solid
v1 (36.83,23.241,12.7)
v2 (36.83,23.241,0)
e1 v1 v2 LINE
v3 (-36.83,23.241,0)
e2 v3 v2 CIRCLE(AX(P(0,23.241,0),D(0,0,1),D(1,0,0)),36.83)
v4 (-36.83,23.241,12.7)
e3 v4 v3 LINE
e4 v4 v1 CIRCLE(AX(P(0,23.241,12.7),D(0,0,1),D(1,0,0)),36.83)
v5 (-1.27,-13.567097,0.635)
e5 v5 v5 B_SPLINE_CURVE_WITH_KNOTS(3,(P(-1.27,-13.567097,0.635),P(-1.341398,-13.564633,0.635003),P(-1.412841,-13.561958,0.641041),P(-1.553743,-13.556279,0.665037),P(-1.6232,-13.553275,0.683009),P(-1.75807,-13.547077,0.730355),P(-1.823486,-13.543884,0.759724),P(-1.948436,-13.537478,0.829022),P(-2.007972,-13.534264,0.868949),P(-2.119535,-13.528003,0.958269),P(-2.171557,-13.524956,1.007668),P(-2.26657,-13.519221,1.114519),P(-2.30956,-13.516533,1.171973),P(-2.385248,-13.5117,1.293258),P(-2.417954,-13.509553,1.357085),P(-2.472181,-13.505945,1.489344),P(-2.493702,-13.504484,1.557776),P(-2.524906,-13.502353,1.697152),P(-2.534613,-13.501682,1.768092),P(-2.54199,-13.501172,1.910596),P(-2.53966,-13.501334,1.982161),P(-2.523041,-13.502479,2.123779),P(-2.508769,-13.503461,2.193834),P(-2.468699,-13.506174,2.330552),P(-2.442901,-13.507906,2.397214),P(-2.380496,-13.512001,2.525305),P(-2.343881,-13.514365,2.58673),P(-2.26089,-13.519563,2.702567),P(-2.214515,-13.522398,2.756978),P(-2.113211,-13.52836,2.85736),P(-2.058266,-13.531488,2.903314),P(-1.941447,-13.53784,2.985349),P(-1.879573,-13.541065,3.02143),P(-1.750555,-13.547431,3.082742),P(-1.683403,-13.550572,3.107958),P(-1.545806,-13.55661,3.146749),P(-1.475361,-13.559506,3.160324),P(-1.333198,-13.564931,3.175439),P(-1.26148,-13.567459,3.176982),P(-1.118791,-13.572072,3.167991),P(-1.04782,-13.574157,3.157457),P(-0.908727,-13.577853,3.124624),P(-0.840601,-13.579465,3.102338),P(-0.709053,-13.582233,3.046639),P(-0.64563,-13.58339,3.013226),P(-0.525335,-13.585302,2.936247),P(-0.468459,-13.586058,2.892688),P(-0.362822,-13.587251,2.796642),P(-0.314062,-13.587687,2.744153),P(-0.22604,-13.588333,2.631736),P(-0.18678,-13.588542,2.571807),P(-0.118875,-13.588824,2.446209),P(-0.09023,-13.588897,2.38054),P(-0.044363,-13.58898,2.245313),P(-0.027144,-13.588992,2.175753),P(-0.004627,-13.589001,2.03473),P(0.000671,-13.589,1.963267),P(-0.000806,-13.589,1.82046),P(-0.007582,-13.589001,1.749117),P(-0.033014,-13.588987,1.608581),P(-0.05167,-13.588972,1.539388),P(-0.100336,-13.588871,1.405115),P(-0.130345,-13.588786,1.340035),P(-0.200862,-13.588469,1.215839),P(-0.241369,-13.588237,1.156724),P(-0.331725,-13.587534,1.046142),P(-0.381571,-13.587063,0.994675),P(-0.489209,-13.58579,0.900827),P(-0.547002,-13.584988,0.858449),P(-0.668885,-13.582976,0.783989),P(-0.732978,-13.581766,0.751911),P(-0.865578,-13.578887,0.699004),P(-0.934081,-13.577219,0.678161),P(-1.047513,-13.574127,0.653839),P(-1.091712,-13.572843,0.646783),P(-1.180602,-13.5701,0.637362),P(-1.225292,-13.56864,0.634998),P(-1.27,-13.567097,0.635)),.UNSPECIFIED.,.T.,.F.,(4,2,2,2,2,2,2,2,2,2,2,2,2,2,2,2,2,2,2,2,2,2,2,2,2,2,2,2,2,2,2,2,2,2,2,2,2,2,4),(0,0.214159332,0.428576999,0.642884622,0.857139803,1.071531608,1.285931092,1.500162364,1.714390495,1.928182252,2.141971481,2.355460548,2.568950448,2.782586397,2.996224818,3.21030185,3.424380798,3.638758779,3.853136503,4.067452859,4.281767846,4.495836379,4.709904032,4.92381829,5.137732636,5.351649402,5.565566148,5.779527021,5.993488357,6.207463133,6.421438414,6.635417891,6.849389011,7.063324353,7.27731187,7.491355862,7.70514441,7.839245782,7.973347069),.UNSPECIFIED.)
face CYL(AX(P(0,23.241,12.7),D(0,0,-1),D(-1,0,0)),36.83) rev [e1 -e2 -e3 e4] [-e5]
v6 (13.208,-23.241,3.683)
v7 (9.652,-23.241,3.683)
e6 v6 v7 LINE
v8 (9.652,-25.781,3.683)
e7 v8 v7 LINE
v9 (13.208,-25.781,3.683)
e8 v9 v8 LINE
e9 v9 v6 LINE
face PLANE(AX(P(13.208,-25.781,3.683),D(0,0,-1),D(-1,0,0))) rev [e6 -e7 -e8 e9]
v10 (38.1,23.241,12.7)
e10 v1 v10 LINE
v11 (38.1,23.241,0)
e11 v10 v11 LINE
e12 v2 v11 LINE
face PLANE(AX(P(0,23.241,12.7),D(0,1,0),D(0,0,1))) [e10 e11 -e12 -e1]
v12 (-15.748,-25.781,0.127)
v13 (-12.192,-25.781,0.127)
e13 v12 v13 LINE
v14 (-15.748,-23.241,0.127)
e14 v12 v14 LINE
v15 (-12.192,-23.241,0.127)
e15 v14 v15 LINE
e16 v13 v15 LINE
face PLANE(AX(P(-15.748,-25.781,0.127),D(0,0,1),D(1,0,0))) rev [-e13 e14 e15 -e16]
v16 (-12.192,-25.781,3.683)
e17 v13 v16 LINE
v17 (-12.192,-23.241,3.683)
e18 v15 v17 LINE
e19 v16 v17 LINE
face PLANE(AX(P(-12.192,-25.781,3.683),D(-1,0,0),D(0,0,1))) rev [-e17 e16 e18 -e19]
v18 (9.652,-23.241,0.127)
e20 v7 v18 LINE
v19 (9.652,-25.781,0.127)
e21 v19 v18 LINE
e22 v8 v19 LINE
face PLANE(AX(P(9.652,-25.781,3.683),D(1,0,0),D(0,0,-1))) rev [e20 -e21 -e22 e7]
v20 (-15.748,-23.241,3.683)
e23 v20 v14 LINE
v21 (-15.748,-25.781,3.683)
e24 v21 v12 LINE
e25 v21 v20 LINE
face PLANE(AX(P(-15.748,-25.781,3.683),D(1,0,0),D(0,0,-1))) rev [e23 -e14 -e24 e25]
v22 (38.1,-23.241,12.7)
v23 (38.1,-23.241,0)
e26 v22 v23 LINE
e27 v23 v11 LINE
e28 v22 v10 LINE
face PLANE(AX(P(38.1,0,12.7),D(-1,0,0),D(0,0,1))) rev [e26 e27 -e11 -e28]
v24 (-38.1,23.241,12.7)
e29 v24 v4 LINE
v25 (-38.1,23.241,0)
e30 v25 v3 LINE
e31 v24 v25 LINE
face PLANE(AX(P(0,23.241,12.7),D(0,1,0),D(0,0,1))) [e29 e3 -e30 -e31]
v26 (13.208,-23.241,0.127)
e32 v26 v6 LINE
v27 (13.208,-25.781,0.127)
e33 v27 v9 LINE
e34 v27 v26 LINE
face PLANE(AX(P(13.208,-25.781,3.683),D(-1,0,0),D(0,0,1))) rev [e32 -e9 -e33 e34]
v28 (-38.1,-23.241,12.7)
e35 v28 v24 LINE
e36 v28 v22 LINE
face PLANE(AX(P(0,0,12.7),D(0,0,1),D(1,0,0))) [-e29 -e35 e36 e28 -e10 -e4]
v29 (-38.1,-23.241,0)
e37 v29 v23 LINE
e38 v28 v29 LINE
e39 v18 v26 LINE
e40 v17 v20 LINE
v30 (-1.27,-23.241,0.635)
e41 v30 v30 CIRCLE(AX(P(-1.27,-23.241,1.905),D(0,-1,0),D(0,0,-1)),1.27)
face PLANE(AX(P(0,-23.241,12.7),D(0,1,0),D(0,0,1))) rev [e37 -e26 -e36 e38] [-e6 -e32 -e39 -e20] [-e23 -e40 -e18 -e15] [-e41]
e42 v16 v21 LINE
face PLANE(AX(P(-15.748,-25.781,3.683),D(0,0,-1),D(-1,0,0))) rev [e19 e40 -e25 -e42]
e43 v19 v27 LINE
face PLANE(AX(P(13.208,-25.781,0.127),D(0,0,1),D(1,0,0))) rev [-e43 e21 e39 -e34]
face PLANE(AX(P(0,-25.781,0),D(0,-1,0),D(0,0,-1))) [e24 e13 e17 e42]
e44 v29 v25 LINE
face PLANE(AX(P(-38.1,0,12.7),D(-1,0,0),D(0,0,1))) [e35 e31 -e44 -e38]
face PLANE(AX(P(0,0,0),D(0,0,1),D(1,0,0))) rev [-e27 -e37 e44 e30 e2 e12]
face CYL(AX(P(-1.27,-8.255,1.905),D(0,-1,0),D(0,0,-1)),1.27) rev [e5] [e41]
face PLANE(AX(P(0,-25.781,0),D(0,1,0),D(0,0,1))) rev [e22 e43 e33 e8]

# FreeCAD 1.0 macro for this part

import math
import FreeCAD as App
import Part
import Sketcher
from FreeCAD import Vector
Q = App.Units.Quantity


def add_polygon(sketch, points):
    """Adds a closed chain of lines whose ends are joined by coincident constraints."""
    first, n = sketch.GeometryCount, len(points)
    for a, b in zip(points, points[1:] + points[:1]):
        sketch.addGeometry(Part.LineSegment(App.Vector(*a, 0), App.Vector(*b, 0)), False)
    for i in range(n):
        sketch.addConstraint(Sketcher.Constraint("Coincident", first + i, 2, first + (i + 1) % n, 1))

doc = App.newDocument("Part")
body = doc.addObject("PartDesign::Body", "Body")

sketch1 = body.newObject("Sketcher::SketchObject", "Sketch")
sketch1.AttachmentSupport = (doc.getObject("XY_Plane"), [""])
sketch1.MapMode = "FlatFace"
sketch1.addGeometry([
    Part.LineSegment(Vector(-38.1, 23.241, 0), Vector(-38.1, -23.241, 0)),
    Part.LineSegment(Vector(-38.1, -23.241, 0), Vector(38.1, -23.241, 0)),
    Part.LineSegment(Vector(38.1, -23.241, 0), Vector(38.1, 23.241, 0)),
    Part.LineSegment(Vector(38.1, 23.241, 0), Vector(36.83, 23.241, 0)),
    Part.ArcOfCircle(Part.Circle(Vector(0, 23.241, 0), Vector(0, 0, 1), 36.83), math.radians(180), math.radians(360)),
    Part.LineSegment(Vector(-36.83, 23.241, 0), Vector(-38.1, 23.241, 0)),
], False)
sketch1.addConstraint([
    Sketcher.Constraint("Coincident", 0, 2, 1, 1),
    Sketcher.Constraint("Coincident", 1, 2, 2, 1),
    Sketcher.Constraint("Coincident", 2, 2, 3, 1),
    Sketcher.Constraint("Coincident", 3, 2, 4, 2),
    Sketcher.Constraint("Coincident", 4, 1, 5, 1),
    Sketcher.Constraint("Coincident", 5, 2, 0, 1),
    Sketcher.Constraint("Vertical", 0),
    Sketcher.Constraint("Horizontal", 1),
    Sketcher.Constraint("Vertical", 2),
    Sketcher.Constraint("Horizontal", 3),
    Sketcher.Constraint("Horizontal", 5),
    Sketcher.Constraint("Symmetric", 0, 2, 2, 2, -1, 1),
    Sketcher.Constraint("Symmetric", 3, 2, 4, 1, -2),
    Sketcher.Constraint("Horizontal", 4, 3, 2, 2),
    Sketcher.Constraint("DistanceX", 1, 1, 1, 2, Q("3 in")),
    Sketcher.Constraint("Radius", 4, Q("1.45 in")),
    Sketcher.Constraint("DistanceY", 0, 2, 0, 1, Q("1.83 in")),
])
pad1 = body.newObject("PartDesign::Pad", "Pad")
pad1.Profile = sketch1
pad1.Length = Q("0.5 in")

sketch2 = body.newObject("Sketcher::SketchObject", "Sketch001")
sketch2.AttachmentSupport = (doc.getObject("XZ_Plane"), [""])
sketch2.MapMode = "FlatFace"
sketch2.AttachmentOffset = App.Placement(Vector(0, 0, 0.915 * 25.4), App.Rotation())
add_polygon(sketch2, [(9.652, 3.683), (9.652, 0.127), (13.208, 0.127), (13.208, 3.683)])
add_polygon(sketch2, [(-15.748, 3.683), (-15.748, 0.127), (-12.192, 0.127), (-12.192, 3.683)])
sketch2.addConstraint([
    Sketcher.Constraint("Vertical", 0),
    Sketcher.Constraint("Horizontal", 1),
    Sketcher.Constraint("Vertical", 2),
    Sketcher.Constraint("Horizontal", 3),
    Sketcher.Constraint("Vertical", 4),
    Sketcher.Constraint("Horizontal", 5),
    Sketcher.Constraint("Vertical", 6),
    Sketcher.Constraint("Horizontal", 7),
    Sketcher.Constraint("Horizontal", 1, 2, 4, 2),
    Sketcher.Constraint("Horizontal", 3, 2, 6, 2),
    Sketcher.Constraint("Equal", 3, 5),
    Sketcher.Constraint("Equal", 7, 0),
    Sketcher.Constraint("DistanceX", 4, 2, 0, 2, Q("1 in")),
    Sketcher.Constraint("DistanceX", 1, 1, 1, 2, Q("0.14 in")),
    Sketcher.Constraint("DistanceX", -1, 1, 0, 2, Q("0.38 in")),
    Sketcher.Constraint("DistanceY", -1, 1, 0, 2, Q("0.005 in")),
])
pad2 = body.newObject("PartDesign::Pad", "Pad001")
pad2.Profile = sketch2
pad2.Length = Q("0.1 in")

sketch3 = body.newObject("Sketcher::SketchObject", "Sketch002")
sketch3.AttachmentSupport = (doc.getObject("XZ_Plane"), [""])
sketch3.MapMode = "FlatFace"
sketch3.AttachmentOffset = App.Placement(Vector(0, 0, 0.915 * 25.4), App.Rotation())
sketch3.addGeometry(Part.Circle(Vector(-1.27, 1.905, 0), Vector(0, 0, 1), 1.27), False)
sketch3.addConstraint([
    Sketcher.Constraint("Diameter", 0, Q("0.1 in")),
    Sketcher.Constraint("DistanceX", 0, 3, -1, 1, Q("0.05 in")),
    Sketcher.Constraint("DistanceY", -1, 1, 0, 3, Q("0.075 in")),
])
pocket1 = body.newObject("PartDesign::Pocket", "Pocket")
pocket1.Profile = sketch3
pocket1.Length = Q("0.59 in")

doc.recompute()
